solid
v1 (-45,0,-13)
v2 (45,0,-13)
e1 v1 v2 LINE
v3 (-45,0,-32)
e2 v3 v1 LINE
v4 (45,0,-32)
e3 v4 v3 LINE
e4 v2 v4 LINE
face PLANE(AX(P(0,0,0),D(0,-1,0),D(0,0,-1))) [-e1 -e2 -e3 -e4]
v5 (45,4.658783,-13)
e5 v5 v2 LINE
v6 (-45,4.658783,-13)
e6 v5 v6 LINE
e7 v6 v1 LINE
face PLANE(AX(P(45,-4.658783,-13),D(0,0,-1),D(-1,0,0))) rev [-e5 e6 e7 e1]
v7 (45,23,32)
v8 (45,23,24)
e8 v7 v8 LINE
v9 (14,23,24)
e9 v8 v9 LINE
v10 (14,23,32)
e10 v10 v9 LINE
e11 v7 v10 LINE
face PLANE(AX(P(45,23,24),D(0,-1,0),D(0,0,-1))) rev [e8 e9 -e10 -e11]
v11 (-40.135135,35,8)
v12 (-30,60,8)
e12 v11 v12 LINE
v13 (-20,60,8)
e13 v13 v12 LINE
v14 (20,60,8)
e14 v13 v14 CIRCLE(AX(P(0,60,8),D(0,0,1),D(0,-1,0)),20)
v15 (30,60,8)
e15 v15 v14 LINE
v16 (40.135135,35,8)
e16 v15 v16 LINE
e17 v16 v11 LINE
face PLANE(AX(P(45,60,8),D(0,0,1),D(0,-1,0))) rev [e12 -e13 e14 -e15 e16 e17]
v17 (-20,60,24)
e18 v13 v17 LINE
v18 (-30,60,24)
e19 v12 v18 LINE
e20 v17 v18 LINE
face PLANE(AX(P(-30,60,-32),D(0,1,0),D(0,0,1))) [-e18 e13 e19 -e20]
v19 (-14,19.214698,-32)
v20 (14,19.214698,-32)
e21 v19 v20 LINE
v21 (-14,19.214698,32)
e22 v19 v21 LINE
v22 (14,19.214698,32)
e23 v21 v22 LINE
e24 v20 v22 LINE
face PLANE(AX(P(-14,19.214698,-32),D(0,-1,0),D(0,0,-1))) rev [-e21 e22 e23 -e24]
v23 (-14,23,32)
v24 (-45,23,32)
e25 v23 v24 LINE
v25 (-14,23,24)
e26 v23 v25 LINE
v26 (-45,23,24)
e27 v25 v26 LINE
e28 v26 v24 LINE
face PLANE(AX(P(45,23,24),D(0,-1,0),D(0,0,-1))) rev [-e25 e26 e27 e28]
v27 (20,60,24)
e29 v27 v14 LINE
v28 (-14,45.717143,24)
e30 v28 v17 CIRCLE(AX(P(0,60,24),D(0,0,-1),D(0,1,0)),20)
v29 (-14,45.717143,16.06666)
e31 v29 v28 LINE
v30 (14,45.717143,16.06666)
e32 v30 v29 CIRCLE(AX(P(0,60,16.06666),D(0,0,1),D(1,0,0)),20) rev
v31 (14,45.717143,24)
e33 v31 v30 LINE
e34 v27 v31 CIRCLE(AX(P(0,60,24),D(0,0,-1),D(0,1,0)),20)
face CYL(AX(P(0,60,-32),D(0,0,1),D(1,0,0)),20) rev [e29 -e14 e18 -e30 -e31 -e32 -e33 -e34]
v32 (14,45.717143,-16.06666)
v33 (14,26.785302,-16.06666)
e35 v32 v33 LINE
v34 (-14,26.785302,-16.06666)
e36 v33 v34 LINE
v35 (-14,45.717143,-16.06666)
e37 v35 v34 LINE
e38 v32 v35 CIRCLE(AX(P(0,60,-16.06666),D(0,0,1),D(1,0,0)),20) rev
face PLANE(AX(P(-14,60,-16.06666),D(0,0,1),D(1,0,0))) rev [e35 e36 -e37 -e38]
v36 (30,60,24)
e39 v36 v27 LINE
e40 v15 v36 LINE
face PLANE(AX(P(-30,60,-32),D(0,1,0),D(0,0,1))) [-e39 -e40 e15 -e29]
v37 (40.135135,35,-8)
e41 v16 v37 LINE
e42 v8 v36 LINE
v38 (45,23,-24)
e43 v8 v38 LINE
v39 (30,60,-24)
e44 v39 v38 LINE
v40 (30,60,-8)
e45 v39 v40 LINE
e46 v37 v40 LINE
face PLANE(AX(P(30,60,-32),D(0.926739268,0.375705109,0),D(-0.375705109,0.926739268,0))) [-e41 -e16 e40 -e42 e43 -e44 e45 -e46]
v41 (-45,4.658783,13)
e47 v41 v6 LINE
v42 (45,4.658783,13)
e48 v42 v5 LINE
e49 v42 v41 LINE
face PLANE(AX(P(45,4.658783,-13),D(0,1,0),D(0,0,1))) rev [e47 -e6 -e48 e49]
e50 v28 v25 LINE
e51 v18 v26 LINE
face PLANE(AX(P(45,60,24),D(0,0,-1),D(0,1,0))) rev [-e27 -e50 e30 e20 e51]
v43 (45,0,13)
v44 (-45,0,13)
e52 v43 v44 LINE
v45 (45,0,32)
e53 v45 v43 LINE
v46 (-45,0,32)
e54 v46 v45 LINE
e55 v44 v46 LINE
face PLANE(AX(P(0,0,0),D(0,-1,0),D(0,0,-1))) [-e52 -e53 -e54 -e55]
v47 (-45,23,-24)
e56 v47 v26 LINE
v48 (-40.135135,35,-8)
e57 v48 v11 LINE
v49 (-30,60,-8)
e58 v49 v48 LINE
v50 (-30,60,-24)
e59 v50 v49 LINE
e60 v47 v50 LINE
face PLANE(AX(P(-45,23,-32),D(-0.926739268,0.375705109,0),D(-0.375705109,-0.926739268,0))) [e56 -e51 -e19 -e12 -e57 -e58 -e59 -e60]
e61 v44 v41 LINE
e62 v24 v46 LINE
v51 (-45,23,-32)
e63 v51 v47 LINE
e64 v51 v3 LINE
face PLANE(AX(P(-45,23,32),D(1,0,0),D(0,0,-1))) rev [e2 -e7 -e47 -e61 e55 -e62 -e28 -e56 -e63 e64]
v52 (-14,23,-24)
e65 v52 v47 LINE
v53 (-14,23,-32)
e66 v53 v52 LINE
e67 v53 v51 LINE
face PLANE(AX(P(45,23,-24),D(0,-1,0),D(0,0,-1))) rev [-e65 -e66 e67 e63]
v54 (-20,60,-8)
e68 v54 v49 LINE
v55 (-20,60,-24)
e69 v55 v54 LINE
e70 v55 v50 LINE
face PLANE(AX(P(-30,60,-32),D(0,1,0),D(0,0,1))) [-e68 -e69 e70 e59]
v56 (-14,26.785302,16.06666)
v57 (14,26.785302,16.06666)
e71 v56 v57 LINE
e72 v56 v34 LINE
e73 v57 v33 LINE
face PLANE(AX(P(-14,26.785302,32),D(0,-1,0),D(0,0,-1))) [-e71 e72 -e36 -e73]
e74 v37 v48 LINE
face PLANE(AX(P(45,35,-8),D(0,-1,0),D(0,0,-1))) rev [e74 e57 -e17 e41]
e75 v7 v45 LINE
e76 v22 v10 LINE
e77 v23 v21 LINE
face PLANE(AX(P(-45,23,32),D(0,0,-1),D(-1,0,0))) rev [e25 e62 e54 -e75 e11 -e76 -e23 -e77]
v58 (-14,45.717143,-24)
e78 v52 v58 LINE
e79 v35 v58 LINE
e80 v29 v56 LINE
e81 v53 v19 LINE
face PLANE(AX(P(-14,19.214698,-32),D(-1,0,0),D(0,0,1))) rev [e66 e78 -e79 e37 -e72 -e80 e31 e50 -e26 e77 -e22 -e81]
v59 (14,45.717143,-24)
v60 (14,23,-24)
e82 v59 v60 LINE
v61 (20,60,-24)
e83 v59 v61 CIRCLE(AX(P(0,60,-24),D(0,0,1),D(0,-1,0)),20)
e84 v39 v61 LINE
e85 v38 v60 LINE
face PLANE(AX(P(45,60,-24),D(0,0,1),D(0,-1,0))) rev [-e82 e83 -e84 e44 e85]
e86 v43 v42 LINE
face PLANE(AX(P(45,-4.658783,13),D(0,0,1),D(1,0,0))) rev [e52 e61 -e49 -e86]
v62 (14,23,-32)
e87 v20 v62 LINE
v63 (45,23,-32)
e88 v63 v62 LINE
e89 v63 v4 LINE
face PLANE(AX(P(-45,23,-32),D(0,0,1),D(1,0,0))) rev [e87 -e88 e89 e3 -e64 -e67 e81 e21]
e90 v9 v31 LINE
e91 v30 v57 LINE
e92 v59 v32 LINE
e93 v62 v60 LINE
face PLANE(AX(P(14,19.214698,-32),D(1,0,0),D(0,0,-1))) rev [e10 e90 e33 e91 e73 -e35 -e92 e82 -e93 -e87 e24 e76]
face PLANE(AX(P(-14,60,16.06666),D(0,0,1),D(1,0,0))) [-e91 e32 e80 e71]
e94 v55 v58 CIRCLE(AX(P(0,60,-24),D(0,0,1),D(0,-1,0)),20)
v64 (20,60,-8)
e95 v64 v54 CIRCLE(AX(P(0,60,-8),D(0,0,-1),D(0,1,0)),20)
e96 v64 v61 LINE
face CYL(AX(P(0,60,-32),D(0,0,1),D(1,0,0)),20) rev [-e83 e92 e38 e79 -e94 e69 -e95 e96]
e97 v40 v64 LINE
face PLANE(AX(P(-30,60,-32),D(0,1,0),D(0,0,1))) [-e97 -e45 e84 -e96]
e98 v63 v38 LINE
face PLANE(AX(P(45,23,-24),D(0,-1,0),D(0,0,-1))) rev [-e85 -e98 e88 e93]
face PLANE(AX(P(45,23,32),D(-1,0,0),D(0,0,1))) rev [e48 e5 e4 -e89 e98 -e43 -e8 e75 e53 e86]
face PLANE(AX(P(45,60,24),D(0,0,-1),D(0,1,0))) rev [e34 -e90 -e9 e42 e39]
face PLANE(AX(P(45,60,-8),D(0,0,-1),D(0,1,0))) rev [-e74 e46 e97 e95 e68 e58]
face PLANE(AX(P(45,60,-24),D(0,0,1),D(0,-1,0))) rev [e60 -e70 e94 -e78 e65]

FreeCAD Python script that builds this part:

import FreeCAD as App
import Part
import Sketcher
Q = App.Units.Quantity


def add_polygon(sketch, points):
    """Adds a closed chain of lines whose ends are joined by coincident constraints."""
    first, n = sketch.GeometryCount, len(points)
    for a, b in zip(points, points[1:] + points[:1]):
        sketch.addGeometry(Part.LineSegment(App.Vector(*a, 0), App.Vector(*b, 0)), False)
    for i in range(n):
        sketch.addConstraint(Sketcher.Constraint("Coincident", first + i, 2, first + (i + 1) % n, 1))

doc = App.newDocument("Part")
params = doc.addObject("Spreadsheet::Sheet", "Params")
for row, (alias, value) in enumerate([
    ("sketch1_width", "90 mm"),
    ("sketch1_height", "64 mm"),
    ("pad1_length", "23 mm"),
    ("sketch2_height", "26 mm"),
    ("sketch3_width", "28 mm"),
    ("sketch4_width", "60 mm"),
    ("sketch4_width2", "90 mm"),
    ("pad2_length", "64 mm"),
    ("sketch5_width", "37 mm"),
    ("sketch5_height", "8 mm"),
    ("sketch6_width", "25 mm"),
    ("sketch6_height", "16 mm"),
    ("sketch7_diameter", "40 mm"),
    ("sketch8_width", "28 mm"),
], start=1):
    params.set(f"A{row}", alias)
    params.set(f"B{row}", "=" + value)
    params.setAlias(f"B{row}", alias)

body = doc.addObject("PartDesign::Body", "Body")

# Sketch on XZ plane
sketch1 = body.newObject("Sketcher::SketchObject", "Sketch")
sketch1.AttachmentSupport = (doc.getObject("XZ_Plane"), [""])
sketch1.MapMode = "FlatFace"
add_polygon(sketch1, [(-45, -32), (-45, 32), (45, 32), (45, -32)])  # lines 0-3
sketch1.addConstraint([
    Sketcher.Constraint("Vertical", 0),
    Sketcher.Constraint("Horizontal", 1),
    Sketcher.Constraint("Vertical", 2),
    Sketcher.Constraint("Horizontal", 3),
    Sketcher.Constraint("Symmetric", 0, 2, 2, 2, -1, 1),
    Sketcher.Constraint("DistanceX", 1, 1, 1, 2, Q("90 mm")),
    Sketcher.Constraint("DistanceY", 0, 1, 0, 2, Q("64 mm")),
])
sketch1.setExpression("Constraints[9]", "Params.sketch1_width")
sketch1.setExpression("Constraints[10]", "Params.sketch1_height")
pad1 = body.newObject("PartDesign::Pad", "Pad")
pad1.Profile = sketch1
pad1.setExpression("Length", "Params.pad1_length")
pad1.Reversed = True

# Sketch on YZ plane
sketch2 = body.newObject("Sketcher::SketchObject", "Sketch001")
sketch2.AttachmentSupport = (doc.getObject("YZ_Plane"), [""])
sketch2.MapMode = "FlatFace"
sketch2.AttachmentOffset = App.Placement(App.Vector(0, 0, -45), App.Rotation())
add_polygon(sketch2, [(5, -13), (-5, -13), (-5, 13), (5, 13)])  # lines 0-3
sketch2.addConstraint([
    Sketcher.Constraint("Horizontal", 0),
    Sketcher.Constraint("Vertical", 1),
    Sketcher.Constraint("Horizontal", 2),
    Sketcher.Constraint("Vertical", 3),
    Sketcher.Constraint("Symmetric", 0, 2, 2, 2, -1, 1),
    Sketcher.Constraint("DistanceY", 1, 1, 1, 2, Q("26 mm")),
    Sketcher.Constraint("DistanceX", 0, 2, 0, 1, Q("9.317565 mm")),
])
sketch2.setExpression("Constraints[9]", "Params.sketch2_height")
pocket1 = body.newObject("PartDesign::Pocket", "Pocket")
pocket1.Profile = sketch2
pocket1.Type = "ThroughAll"
pocket1.Reversed = True

# Sketch on XY plane
sketch3 = body.newObject("Sketcher::SketchObject", "Sketch002")
sketch3.AttachmentSupport = (doc.getObject("XY_Plane"), [""])
sketch3.MapMode = "FlatFace"
sketch3.AttachmentOffset = App.Placement(App.Vector(0, 0, 32), App.Rotation())
add_polygon(sketch3, [(-14, 27), (-14, 19), (14, 19), (14, 27)])  # lines 0-3
sketch3.addConstraint([
    Sketcher.Constraint("Vertical", 0),
    Sketcher.Constraint("Horizontal", 1),
    Sketcher.Constraint("Vertical", 2),
    Sketcher.Constraint("Horizontal", 3),
    Sketcher.Constraint("DistanceX", 1, 1, 1, 2, Q("28 mm")),
    Sketcher.Constraint("DistanceX", 0, 2, -1, 1, Q("14 mm")),
    Sketcher.Constraint("DistanceY", 0, 2, 0, 1, Q("7.570604 mm")),
    Sketcher.Constraint("DistanceY", -1, 1, 0, 2, Q("19.214698 mm")),
])
sketch3.setExpression("Constraints[8]", "Params.sketch3_width")
pocket2 = body.newObject("PartDesign::Pocket", "Pocket001")
pocket2.Profile = sketch3
pocket2.Type = "ThroughAll"

# Sketch on XY plane
sketch4 = body.newObject("Sketcher::SketchObject", "Sketch003")
sketch4.AttachmentSupport = (doc.getObject("XY_Plane"), [""])
sketch4.MapMode = "FlatFace"
sketch4.AttachmentOffset = App.Placement(App.Vector(0, 0, 32), App.Rotation())
add_polygon(sketch4, [(30, 60), (-30, 60), (-45, 23), (45, 23)])  # lines 0-3
sketch4.addConstraint([
    Sketcher.Constraint("Horizontal", 0),
    Sketcher.Constraint("Horizontal", 2),
    Sketcher.Constraint("Equal", 1, 3),
    Sketcher.Constraint("DistanceX", 0, 2, 0, 1, Q("60 mm")),
    Sketcher.Constraint("DistanceX", 2, 1, 2, 2, Q("90 mm")),
    Sketcher.Constraint("DistanceX", 0, 2, -1, 1, Q("30 mm")),
    Sketcher.Constraint("DistanceY", -1, 1, 0, 2, Q("60 mm")),
    Sketcher.Constraint("DistanceY", -1, 1, 1, 2, Q("23 mm")),
])
sketch4.setExpression("Constraints[7]", "Params.sketch4_width")
sketch4.setExpression("Constraints[8]", "Params.sketch4_width2")
pad2 = body.newObject("PartDesign::Pad", "Pad001")
pad2.Profile = sketch4
pad2.setExpression("Length", "Params.pad2_length")
pad2.Reversed = True

# Sketch on YZ plane
sketch5 = body.newObject("Sketcher::SketchObject", "Sketch004")
sketch5.AttachmentSupport = (doc.getObject("YZ_Plane"), [""])
sketch5.MapMode = "FlatFace"
sketch5.AttachmentOffset = App.Placement(App.Vector(0, 0, -45), App.Rotation())
add_polygon(sketch5, [(60, -32), (23, -32), (23, -24), (60, -24)])  # lines 0-3
add_polygon(sketch5, [(60, 24), (23, 24), (23, 32), (60, 32)])  # lines 4-7
sketch5.addConstraint([
    Sketcher.Constraint("Horizontal", 0),
    Sketcher.Constraint("Vertical", 1),
    Sketcher.Constraint("Horizontal", 2),
    Sketcher.Constraint("Vertical", 3),
    Sketcher.Constraint("Horizontal", 4),
    Sketcher.Constraint("Vertical", 5),
    Sketcher.Constraint("Horizontal", 6),
    Sketcher.Constraint("Vertical", 7),
    Sketcher.Constraint("Symmetric", 1, 2, 4, 2, -1),
    Sketcher.Constraint("Symmetric", 3, 2, 6, 2, -1),
    Sketcher.Constraint("DistanceX", 0, 2, 0, 1, Q("37 mm")),
    Sketcher.Constraint("DistanceY", 1, 1, 1, 2, Q("8 mm")),
    Sketcher.Constraint("DistanceX", -1, 1, 0, 2, Q("23 mm")),
    Sketcher.Constraint("DistanceY", 0, 2, -1, 1, Q("32 mm")),
])
sketch5.setExpression("Constraints[18]", "Params.sketch5_width")
sketch5.setExpression("Constraints[19]", "Params.sketch5_height")
pocket3 = body.newObject("PartDesign::Pocket", "Pocket002")
pocket3.Profile = sketch5
pocket3.Type = "ThroughAll"
pocket3.Midplane = True

# Sketch on YZ plane
sketch6 = body.newObject("Sketcher::SketchObject", "Sketch005")
sketch6.AttachmentSupport = (doc.getObject("YZ_Plane"), [""])
sketch6.MapMode = "FlatFace"
sketch6.AttachmentOffset = App.Placement(App.Vector(0, 0, -45), App.Rotation())
add_polygon(sketch6, [(60, -8), (35, -8), (35, 8), (60, 8)])  # lines 0-3
sketch6.addConstraint([
    Sketcher.Constraint("Horizontal", 0),
    Sketcher.Constraint("Vertical", 1),
    Sketcher.Constraint("Horizontal", 2),
    Sketcher.Constraint("Vertical", 3),
    Sketcher.Constraint("DistanceX", 0, 2, 0, 1, Q("25 mm")),
    Sketcher.Constraint("DistanceY", 1, 1, 1, 2, Q("16 mm")),
    Sketcher.Constraint("DistanceX", -1, 1, 0, 2, Q("35 mm")),
    Sketcher.Constraint("DistanceY", 0, 2, -1, 1, Q("8 mm")),
])
sketch6.setExpression("Constraints[8]", "Params.sketch6_width")
sketch6.setExpression("Constraints[9]", "Params.sketch6_height")
pocket4 = body.newObject("PartDesign::Pocket", "Pocket003")
pocket4.Profile = sketch6
pocket4.Type = "ThroughAll"
pocket4.Midplane = True

# Sketch on XY plane
sketch7 = body.newObject("Sketcher::SketchObject", "Sketch006")
sketch7.AttachmentSupport = (doc.getObject("XY_Plane"), [""])
sketch7.MapMode = "FlatFace"
sketch7.AttachmentOffset = App.Placement(App.Vector(0, 0, 24), App.Rotation())
sketch7.addGeometry(Part.Circle(App.Vector(0, 60, 0), App.Vector(0, 0, 1), 20), False)
sketch7.addConstraint([
    Sketcher.Constraint("PointOnObject", 0, 3, -2),
    Sketcher.Constraint("Diameter", 0, Q("40 mm")),
    Sketcher.Constraint("DistanceY", -1, 1, 0, 3, Q("60 mm")),
])
sketch7.setExpression("Constraints[1]", "Params.sketch7_diameter")
pocket5 = body.newObject("PartDesign::Pocket", "Pocket004")
pocket5.Profile = sketch7
pocket5.Type = "ThroughAll"
pocket5.Midplane = True

# Sketch on XZ plane
sketch8 = body.newObject("Sketcher::SketchObject", "Sketch007")
sketch8.AttachmentSupport = (doc.getObject("XZ_Plane"), [""])
sketch8.MapMode = "FlatFace"
sketch8.AttachmentOffset = App.Placement(App.Vector(0, 0, -19.214698), App.Rotation())
add_polygon(sketch8, [(-14, 16), (-14, 32), (14, 32), (14, 16)])  # lines 0-3
sketch8.addConstraint([
    Sketcher.Constraint("Vertical", 0),
    Sketcher.Constraint("Horizontal", 1),
    Sketcher.Constraint("Vertical", 2),
    Sketcher.Constraint("Horizontal", 3),
    Sketcher.Constraint("DistanceX", 1, 1, 1, 2, Q("28 mm")),
    Sketcher.Constraint("DistanceX", 0, 2, -1, 1, Q("14 mm")),
    Sketcher.Constraint("DistanceY", -1, 1, 0, 2, Q("32 mm")),
    Sketcher.Constraint("DistanceY", 0, 1, 0, 2, Q("15.93334 mm")),
])
sketch8.setExpression("Constraints[8]", "Params.sketch8_width")
pocket6 = body.newObject("PartDesign::Pocket", "Pocket005")
pocket6.Profile = sketch8
pocket6.Type = "ThroughAll"
doc.recompute()

mirrored = body.newObject("PartDesign::Mirrored", "Mirrored")
mirrored.Originals = [pocket2, pocket6]
mirrored.MirrorPlane = (doc.getObject("XY_Plane"), [""])
body.Tip = mirrored

doc.recompute()
